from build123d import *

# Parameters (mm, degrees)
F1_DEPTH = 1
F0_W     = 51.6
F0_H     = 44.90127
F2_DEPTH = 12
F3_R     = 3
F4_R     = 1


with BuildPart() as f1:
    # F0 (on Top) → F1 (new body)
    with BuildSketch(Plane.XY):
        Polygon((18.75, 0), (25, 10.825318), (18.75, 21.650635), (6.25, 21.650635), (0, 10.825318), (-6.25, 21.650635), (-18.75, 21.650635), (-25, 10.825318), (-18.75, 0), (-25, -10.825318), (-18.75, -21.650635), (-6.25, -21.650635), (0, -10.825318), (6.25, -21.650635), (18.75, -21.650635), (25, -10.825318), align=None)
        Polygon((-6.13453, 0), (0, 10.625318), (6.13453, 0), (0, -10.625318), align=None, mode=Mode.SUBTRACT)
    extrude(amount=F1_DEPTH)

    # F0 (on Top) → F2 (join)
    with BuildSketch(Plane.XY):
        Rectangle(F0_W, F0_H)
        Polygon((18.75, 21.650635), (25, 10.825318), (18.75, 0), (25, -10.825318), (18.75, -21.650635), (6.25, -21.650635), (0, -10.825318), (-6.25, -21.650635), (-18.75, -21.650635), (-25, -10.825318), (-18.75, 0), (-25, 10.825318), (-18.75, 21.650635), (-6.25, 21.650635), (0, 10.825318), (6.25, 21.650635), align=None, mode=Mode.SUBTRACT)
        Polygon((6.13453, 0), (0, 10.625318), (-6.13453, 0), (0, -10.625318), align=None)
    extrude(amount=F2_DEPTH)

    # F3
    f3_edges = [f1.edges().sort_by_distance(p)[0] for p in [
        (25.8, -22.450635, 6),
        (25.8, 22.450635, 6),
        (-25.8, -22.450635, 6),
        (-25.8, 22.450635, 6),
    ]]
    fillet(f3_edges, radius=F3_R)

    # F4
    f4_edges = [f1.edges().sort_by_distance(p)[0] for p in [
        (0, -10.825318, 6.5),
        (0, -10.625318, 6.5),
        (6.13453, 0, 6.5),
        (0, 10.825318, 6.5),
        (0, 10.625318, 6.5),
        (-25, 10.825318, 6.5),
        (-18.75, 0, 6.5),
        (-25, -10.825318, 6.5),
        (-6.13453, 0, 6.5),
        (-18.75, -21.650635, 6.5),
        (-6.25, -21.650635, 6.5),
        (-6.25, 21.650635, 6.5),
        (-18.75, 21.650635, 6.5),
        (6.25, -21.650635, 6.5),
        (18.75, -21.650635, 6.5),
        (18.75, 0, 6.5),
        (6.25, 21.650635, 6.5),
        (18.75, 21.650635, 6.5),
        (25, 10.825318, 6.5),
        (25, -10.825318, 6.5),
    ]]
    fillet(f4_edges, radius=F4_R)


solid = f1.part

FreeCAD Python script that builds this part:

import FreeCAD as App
import Part
import Sketcher
from FreeCAD import Vector
Q = App.Units.Quantity


def edges_at(feature, points):
    """Names of the edges that pass closest to the given points."""
    edges = feature.Shape.Edges
    near = lambda p: min(range(len(edges)), key=lambda i: edges[i].distToShape(Part.Vertex(*p))[0])
    return sorted({f"Edge{near(p) + 1}" for p in points})


def add_polygon(sketch, points):
    """Adds a closed chain of lines whose ends are joined by coincident constraints."""
    first, n = sketch.GeometryCount, len(points)
    for a, b in zip(points, points[1:] + points[:1]):
        sketch.addGeometry(Part.LineSegment(App.Vector(*a, 0), App.Vector(*b, 0)), False)
    for i in range(n):
        sketch.addConstraint(Sketcher.Constraint("Coincident", first + i, 2, first + (i + 1) % n, 1))

doc = App.newDocument("Part")
params = doc.addObject("Spreadsheet::Sheet", "Params")
for row, (alias, value) in enumerate([
    ("sketch1_width", "12.5 mm"),
    ("pad1_length", "1 mm"),
    ("sketch2_width", "51.6 mm"),
    ("sketch2_width2", "12.5 mm"),
    ("pad2_length", "12 mm"),
    ("fillet_radius", "3 mm"),
    ("fillet2_radius", "1 mm"),
], start=1):
    params.set(f"A{row}", alias)
    params.set(f"B{row}", "=" + value)
    params.setAlias(f"B{row}", alias)

body = doc.addObject("PartDesign::Body", "Body")

# Sketch on XY plane
sketch1 = body.newObject("Sketcher::SketchObject", "Sketch")
sketch1.AttachmentSupport = (doc.getObject("XY_Plane"), [""])
sketch1.MapMode = "FlatFace"
add_polygon(sketch1, [(19, 0), (25, 11), (19, 22), (6, 22), (0, 11), (-6, 22), (-19, 22), (-25, 11), (-19, 0), (-25, -11), (-19, -22), (-6, -22), (0, -11), (6, -22), (19, -22), (25, -11)])  # lines 0-15
add_polygon(sketch1, [(0, -11), (-6, 0), (0, 11), (6, 0)])  # lines 16-19
sketch1.addConstraint([
    Sketcher.Constraint("Horizontal", 2),
    Sketcher.Constraint("Horizontal", 5),
    Sketcher.Constraint("Horizontal", 10),
    Sketcher.Constraint("Horizontal", 13),
    Sketcher.Constraint("Symmetric", 0, 2, 8, 2, -1, 1),
    Sketcher.Constraint("Symmetric", 1, 2, 9, 2, -1, 1),
    Sketcher.Constraint("Symmetric", 3, 2, 11, 2, -1, 1),
    Sketcher.Constraint("Symmetric", 4, 2, 12, 2, -1, 1),
    Sketcher.Constraint("Symmetric", 6, 2, 14, 2, -1, 1),
    Sketcher.Constraint("Symmetric", 7, 2, 15, 2, -1, 1),
    Sketcher.Constraint("Symmetric", 16, 2, 18, 2, -1, 1),
    Sketcher.Constraint("Symmetric", 17, 2, 19, 2, -1, 1),
    Sketcher.Constraint("Symmetric", 2, 2, 4, 2, -2),
    Sketcher.Constraint("Symmetric", 0, 2, 6, 2, -2),
    Sketcher.Constraint("PointOnObject", 3, 2, -2),
    Sketcher.Constraint("PointOnObject", 7, 2, -1),
    Sketcher.Constraint("PointOnObject", 16, 2, -1),
    Sketcher.Constraint("PointOnObject", 17, 2, -2),
    Sketcher.Constraint("Parallel", 0, 3),
    Sketcher.Constraint("Parallel", 1, 4),
    Sketcher.Constraint("Parallel", 3, 6),
    Sketcher.Constraint("Parallel", 8, 11),
    Sketcher.Constraint("Parallel", 11, 14),
    Sketcher.Constraint("Parallel", 15, 16),
    Sketcher.Constraint("Horizontal", 0, 2, 3, 2),
    Sketcher.Constraint("Vertical", 5, 2, 7, 2),
    Sketcher.Constraint("Angle", 0, Q("60.000001 deg")),
    Sketcher.Constraint("DistanceX", 2, 2, 2, 1, 12.5),
    Sketcher.Constraint("DistanceX", -1, 1, 0, 2, 25.0),
    Sketcher.Constraint("DistanceY", 17, 2, 3, 2, 0.2),
])
sketch1.setExpression("Constraints[47]", "Params.sketch1_width")
pad1 = body.newObject("PartDesign::Pad", "Pad")
pad1.Profile = sketch1
pad1.setExpression("Length", "Params.pad1_length")

# Sketch on XY plane
sketch2 = body.newObject("Sketcher::SketchObject", "Sketch001")
sketch2.AttachmentSupport = (doc.getObject("XY_Plane"), [""])
sketch2.MapMode = "FlatFace"
add_polygon(sketch2, [(-26, 22), (-26, -22), (26, -22), (26, 22)])  # lines 0-3
add_polygon(sketch2, [(6, 22), (19, 22), (25, 11), (19, 0), (25, -11), (19, -22), (6, -22), (0, -11), (-6, -22), (-19, -22), (-25, -11), (-19, 0), (-25, 11), (-19, 22), (-6, 22), (0, 11)])  # lines 4-19
add_polygon(sketch2, [(6, 0), (0, 11), (-6, 0), (0, -11)])  # lines 20-23
sketch2.addConstraint([
    Sketcher.Constraint("Vertical", 0),
    Sketcher.Constraint("Horizontal", 1),
    Sketcher.Constraint("Vertical", 2),
    Sketcher.Constraint("Horizontal", 3),
    Sketcher.Constraint("Horizontal", 4),
    Sketcher.Constraint("Horizontal", 9),
    Sketcher.Constraint("Horizontal", 12),
    Sketcher.Constraint("Horizontal", 17),
    Sketcher.Constraint("Symmetric", 0, 2, 2, 2, -1, 1),
    Sketcher.Constraint("Symmetric", 4, 2, 12, 2, -1, 1),
    Sketcher.Constraint("Symmetric", 5, 2, 13, 2, -1, 1),
    Sketcher.Constraint("Symmetric", 6, 2, 14, 2, -1, 1),
    Sketcher.Constraint("Symmetric", 7, 2, 15, 2, -1, 1),
    Sketcher.Constraint("Symmetric", 8, 2, 16, 2, -1, 1),
    Sketcher.Constraint("Symmetric", 10, 2, 18, 2, -1, 1),
    Sketcher.Constraint("Symmetric", 20, 2, 22, 2, -1, 1),
    Sketcher.Constraint("Symmetric", 21, 2, 23, 2, -1, 1),
    Sketcher.Constraint("Symmetric", 9, 2, 11, 2, -2),
    Sketcher.Constraint("Symmetric", 7, 2, 13, 2, -2),
    Sketcher.Constraint("PointOnObject", 6, 2, -1),
    Sketcher.Constraint("PointOnObject", 10, 2, -2),
    Sketcher.Constraint("PointOnObject", 20, 2, -2),
    Sketcher.Constraint("PointOnObject", 21, 2, -1),
    Sketcher.Constraint("Parallel", 5, 7),
    Sketcher.Constraint("Parallel", 6, 8),
    Sketcher.Constraint("Parallel", 7, 10),
    Sketcher.Constraint("Parallel", 15, 18),
    Sketcher.Constraint("Parallel", 16, 19),
    Sketcher.Constraint("Parallel", 18, 20),
    Sketcher.Constraint("Horizontal", 7, 2, 10, 2),
    Sketcher.Constraint("Vertical", 4, 2, 6, 2),
    Sketcher.Constraint("Angle", 5, Q("-59.999999 deg")),
    Sketcher.Constraint("DistanceX", 1, 1, 1, 2, 51.6),
    Sketcher.Constraint("DistanceX", 4, 1, 4, 2, 12.5),
    Sketcher.Constraint("DistanceX", -1, 1, 5, 2, 25.0),
    Sketcher.Constraint("DistanceY", 4, 2, 2, 2, 0.8),
    Sketcher.Constraint("DistanceY", 20, 2, 18, 2, 0.2),
])
sketch2.setExpression("Constraints[56]", "Params.sketch2_width")
sketch2.setExpression("Constraints[57]", "Params.sketch2_width2")
pad2 = body.newObject("PartDesign::Pad", "Pad001")
pad2.Profile = sketch2
pad2.setExpression("Length", "Params.pad2_length")
doc.recompute()

fillet = body.newObject("PartDesign::Fillet", "Fillet")
fillet.Base = (pad2, edges_at(pad2, [
    (25.8, -22.451, 6),
    (25.8, 22.451, 6),
    (-25.8, -22.451, 6),
    (-25.8, 22.451, 6),
]))
fillet.setExpression("Radius", "Params.fillet_radius")
doc.recompute()

fillet2 = body.newObject("PartDesign::Fillet", "Fillet001")
fillet2.Base = (fillet, edges_at(fillet, [
    (0, -10.825, 6.5),
    (0, -10.625, 6.5),
    (6.135, 0, 6.5),
    (0, 10.825, 6.5),
    (0, 10.625, 6.5),
    (-25, 10.825, 6.5),
    (-18.75, 0, 6.5),
    (-25, -10.825, 6.5),
    (-6.135, 0, 6.5),
    (-18.75, -21.651, 6.5),
    (-6.25, -21.651, 6.5),
    (-6.25, 21.651, 6.5),
    (-18.75, 21.651, 6.5),
    (6.25, -21.651, 6.5),
    (18.75, -21.651, 6.5),
    (18.75, 0, 6.5),
    (6.25, 21.651, 6.5),
    (18.75, 21.651, 6.5),
    (25, 10.825, 6.5),
    (25, -10.825, 6.5),
]))
fillet2.setExpression("Radius", "Params.fillet2_radius")

doc.recompute()
